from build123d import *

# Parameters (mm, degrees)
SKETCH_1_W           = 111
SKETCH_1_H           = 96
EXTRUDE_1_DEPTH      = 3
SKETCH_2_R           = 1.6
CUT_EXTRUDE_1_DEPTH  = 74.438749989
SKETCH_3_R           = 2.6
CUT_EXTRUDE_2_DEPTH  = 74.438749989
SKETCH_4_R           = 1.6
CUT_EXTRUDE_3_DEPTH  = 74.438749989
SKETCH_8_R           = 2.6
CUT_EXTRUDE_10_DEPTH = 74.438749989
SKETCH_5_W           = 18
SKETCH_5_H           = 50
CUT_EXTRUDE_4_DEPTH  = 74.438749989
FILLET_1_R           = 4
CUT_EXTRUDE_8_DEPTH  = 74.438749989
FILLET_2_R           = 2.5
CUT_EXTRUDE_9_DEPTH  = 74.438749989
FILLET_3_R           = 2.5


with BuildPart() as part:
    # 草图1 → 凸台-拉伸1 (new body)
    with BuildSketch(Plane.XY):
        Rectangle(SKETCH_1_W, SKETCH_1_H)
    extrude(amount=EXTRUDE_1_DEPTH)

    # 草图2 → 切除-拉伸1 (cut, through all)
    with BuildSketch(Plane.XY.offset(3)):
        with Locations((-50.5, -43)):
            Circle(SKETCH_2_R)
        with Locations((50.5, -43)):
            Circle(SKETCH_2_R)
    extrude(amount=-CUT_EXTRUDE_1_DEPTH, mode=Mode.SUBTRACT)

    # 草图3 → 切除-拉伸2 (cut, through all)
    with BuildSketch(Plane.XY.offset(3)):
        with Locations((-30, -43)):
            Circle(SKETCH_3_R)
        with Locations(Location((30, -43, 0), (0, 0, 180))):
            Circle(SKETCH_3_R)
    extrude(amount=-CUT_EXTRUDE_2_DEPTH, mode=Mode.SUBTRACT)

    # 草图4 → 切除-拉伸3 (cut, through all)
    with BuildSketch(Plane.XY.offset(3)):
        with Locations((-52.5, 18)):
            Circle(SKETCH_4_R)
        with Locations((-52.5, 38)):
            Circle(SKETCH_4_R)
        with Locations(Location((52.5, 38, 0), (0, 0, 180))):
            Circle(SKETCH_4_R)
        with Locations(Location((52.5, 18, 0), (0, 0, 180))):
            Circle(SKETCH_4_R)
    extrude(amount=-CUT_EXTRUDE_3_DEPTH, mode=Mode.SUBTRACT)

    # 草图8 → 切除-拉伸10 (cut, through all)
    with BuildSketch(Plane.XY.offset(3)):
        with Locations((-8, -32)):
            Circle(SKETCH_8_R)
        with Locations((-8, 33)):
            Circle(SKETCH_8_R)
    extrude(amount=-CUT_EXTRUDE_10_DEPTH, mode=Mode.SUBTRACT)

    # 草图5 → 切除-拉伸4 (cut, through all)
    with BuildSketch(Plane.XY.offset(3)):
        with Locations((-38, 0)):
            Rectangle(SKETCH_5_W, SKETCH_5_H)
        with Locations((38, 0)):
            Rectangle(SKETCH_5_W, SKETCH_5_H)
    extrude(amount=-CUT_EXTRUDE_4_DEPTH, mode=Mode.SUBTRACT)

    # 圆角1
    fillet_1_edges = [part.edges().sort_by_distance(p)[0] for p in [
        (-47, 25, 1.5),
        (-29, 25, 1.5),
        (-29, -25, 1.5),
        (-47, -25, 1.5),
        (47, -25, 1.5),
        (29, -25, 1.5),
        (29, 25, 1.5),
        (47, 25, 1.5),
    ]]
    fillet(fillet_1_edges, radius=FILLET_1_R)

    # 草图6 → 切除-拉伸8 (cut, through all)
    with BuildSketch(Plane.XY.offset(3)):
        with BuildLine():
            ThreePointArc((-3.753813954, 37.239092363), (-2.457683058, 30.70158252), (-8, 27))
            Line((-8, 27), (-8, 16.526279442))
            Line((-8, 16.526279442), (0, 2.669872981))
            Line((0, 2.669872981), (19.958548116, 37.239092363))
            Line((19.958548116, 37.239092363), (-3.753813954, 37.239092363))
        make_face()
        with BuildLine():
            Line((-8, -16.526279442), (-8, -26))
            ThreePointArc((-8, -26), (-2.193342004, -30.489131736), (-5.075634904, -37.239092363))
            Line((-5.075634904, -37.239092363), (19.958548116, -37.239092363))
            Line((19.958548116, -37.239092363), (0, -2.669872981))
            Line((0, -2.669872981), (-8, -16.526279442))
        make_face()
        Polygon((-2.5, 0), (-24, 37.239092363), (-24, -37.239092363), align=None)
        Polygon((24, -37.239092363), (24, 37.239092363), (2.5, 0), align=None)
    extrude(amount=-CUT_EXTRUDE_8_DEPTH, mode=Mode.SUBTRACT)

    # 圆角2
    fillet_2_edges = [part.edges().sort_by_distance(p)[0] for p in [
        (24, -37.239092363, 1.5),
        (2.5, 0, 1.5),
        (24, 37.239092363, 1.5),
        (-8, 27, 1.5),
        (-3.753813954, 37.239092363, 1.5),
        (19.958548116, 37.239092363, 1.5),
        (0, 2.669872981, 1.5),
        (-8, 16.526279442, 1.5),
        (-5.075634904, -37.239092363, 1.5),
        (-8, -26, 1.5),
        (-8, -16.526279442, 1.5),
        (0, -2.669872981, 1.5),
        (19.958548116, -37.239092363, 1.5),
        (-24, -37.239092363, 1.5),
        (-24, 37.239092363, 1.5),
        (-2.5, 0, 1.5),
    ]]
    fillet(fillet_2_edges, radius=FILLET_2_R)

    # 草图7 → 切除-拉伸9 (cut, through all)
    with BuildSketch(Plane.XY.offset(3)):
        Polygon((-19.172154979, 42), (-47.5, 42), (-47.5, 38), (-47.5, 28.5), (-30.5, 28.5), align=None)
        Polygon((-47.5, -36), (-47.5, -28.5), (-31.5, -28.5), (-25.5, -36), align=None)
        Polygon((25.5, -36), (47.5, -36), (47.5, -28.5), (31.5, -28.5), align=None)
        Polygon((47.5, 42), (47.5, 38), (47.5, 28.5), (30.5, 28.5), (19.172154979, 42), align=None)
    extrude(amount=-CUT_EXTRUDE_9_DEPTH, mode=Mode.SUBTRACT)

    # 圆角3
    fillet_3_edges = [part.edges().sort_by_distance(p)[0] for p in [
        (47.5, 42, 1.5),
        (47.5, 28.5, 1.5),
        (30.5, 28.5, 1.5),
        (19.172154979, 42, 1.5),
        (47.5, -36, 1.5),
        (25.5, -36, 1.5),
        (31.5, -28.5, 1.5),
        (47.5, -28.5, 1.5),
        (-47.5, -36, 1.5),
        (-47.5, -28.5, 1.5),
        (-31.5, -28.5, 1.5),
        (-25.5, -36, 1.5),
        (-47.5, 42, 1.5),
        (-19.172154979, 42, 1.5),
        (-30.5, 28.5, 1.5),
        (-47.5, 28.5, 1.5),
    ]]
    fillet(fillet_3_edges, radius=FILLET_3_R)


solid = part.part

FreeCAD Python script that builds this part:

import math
import FreeCAD as App
import Part
import Sketcher

V = App.Vector
Q = App.Units.Quantity


def edges_at(feature, points):
    """Names of the edges that pass closest to the given points."""
    edges = feature.Shape.Edges
    near = lambda p: min(range(len(edges)), key=lambda i: edges[i].distToShape(Part.Vertex(*p))[0])
    return sorted({f"Edge{near(p) + 1}" for p in points})


def add_polygon(sketch, points):
    """Adds a closed chain of lines whose ends are joined by coincident constraints."""
    first, n = sketch.GeometryCount, len(points)
    for a, b in zip(points, points[1:] + points[:1]):
        sketch.addGeometry(Part.LineSegment(App.Vector(*a, 0), App.Vector(*b, 0)), False)
    for i in range(n):
        sketch.addConstraint(Sketcher.Constraint("Coincident", first + i, 2, first + (i + 1) % n, 1))

doc = App.newDocument("Part")
body = doc.addObject("PartDesign::Body", "Body")

sketch1 = body.newObject("Sketcher::SketchObject", "Sketch")
sketch1.AttachmentSupport = (doc.getObject("XY_Plane"), [""])
sketch1.MapMode = "FlatFace"
add_polygon(sketch1, [(-55.5, 48), (-55.5, -48), (55.5, -48), (55.5, 48)])
sketch1.addConstraint([
    Sketcher.Constraint("Vertical", 0),
    Sketcher.Constraint("Horizontal", 1),
    Sketcher.Constraint("Vertical", 2),
    Sketcher.Constraint("Horizontal", 3),
    Sketcher.Constraint("Symmetric", 0, 2, 2, 2, -1, 1),
    Sketcher.Constraint("DistanceX", 1, 1, 1, 2, 111.0),
    Sketcher.Constraint("DistanceY", 0, 2, 0, 1, 96.0),
])
pad1 = body.newObject("PartDesign::Pad", "Pad")
pad1.Profile = sketch1
pad1.Length = 3

sketch2 = body.newObject("Sketcher::SketchObject", "Sketch001")
sketch2.AttachmentSupport = (doc.getObject("XY_Plane"), [""])
sketch2.MapMode = "FlatFace"
sketch2.AttachmentOffset = App.Placement(V(0, 0, 3), App.Rotation())
sketch2.addGeometry([
    Part.Circle(V(-50.5, -43, 0), V(0, 0, 1), 1.6),
    Part.Circle(V(50.5, -43, 0), V(0, 0, 1), 1.6),
], False)
sketch2.addConstraint([
    Sketcher.Constraint("Equal", 0, 1),
    Sketcher.Constraint("Symmetric", 0, 3, 1, 3, -2),
    Sketcher.Constraint("Diameter", 0, 3.2),
    Sketcher.Constraint("DistanceY", 0, 3, -1, 1, 43.0),
    Sketcher.Constraint("DistanceX", 0, 3, 1, 3, 101.0),
])
pocket1 = body.newObject("PartDesign::Pocket", "Pocket")
pocket1.Profile = sketch2
pocket1.Type = "ThroughAll"

sketch3 = body.newObject("Sketcher::SketchObject", "Sketch002")
sketch3.AttachmentSupport = (doc.getObject("XY_Plane"), [""])
sketch3.MapMode = "FlatFace"
sketch3.AttachmentOffset = App.Placement(V(0, 0, 3), App.Rotation())
sketch3.addGeometry([
    Part.Circle(V(-30, -43, 0), V(0, 0, 1), 2.6),
    Part.Circle(V(30, -43, 0), V(0, 0, 1), 2.6),
], False)
sketch3.addConstraint([
    Sketcher.Constraint("Equal", 0, 1),
    Sketcher.Constraint("Symmetric", 0, 3, 1, 3, -2),
    Sketcher.Constraint("Diameter", 0, 5.2),
    Sketcher.Constraint("DistanceX", 0, 3, -1, 1, 30.0),
    Sketcher.Constraint("DistanceY", 0, 3, -1, 1, 43.0),
])
pocket2 = body.newObject("PartDesign::Pocket", "Pocket001")
pocket2.Profile = sketch3
pocket2.Type = "ThroughAll"

sketch4 = body.newObject("Sketcher::SketchObject", "Sketch003")
sketch4.AttachmentSupport = (doc.getObject("XY_Plane"), [""])
sketch4.MapMode = "FlatFace"
sketch4.AttachmentOffset = App.Placement(V(0, 0, 3), App.Rotation())
sketch4.addGeometry([
    Part.Circle(V(-52.5, 18, 0), V(0, 0, 1), 1.6),
    Part.Circle(V(-52.5, 38, 0), V(0, 0, 1), 1.6),
    Part.Circle(V(52.5, 38, 0), V(0, 0, 1), 1.6),
    Part.Circle(V(52.5, 18, 0), V(0, 0, 1), 1.6),
], False)
sketch4.addConstraint([
    Sketcher.Constraint("Equal", 0, 1),
    Sketcher.Constraint("Equal", 1, 2),
    Sketcher.Constraint("Equal", 2, 3),
    Sketcher.Constraint("Symmetric", 1, 3, 2, 3, -2),
    Sketcher.Constraint("Symmetric", 0, 3, 3, 3, -2),
    Sketcher.Constraint("Vertical", 0, 3, 1, 3),
    Sketcher.Constraint("Diameter", 0, 3.2),
    Sketcher.Constraint("DistanceY", -1, 1, 0, 3, 18.0),
    Sketcher.Constraint("DistanceY", -1, 1, 1, 3, 38.0),
    Sketcher.Constraint("DistanceX", 1, 3, 2, 3, 105.0),
])
pocket3 = body.newObject("PartDesign::Pocket", "Pocket002")
pocket3.Profile = sketch4
pocket3.Type = "ThroughAll"

sketch5 = body.newObject("Sketcher::SketchObject", "Sketch004")
sketch5.AttachmentSupport = (doc.getObject("XY_Plane"), [""])
sketch5.MapMode = "FlatFace"
sketch5.AttachmentOffset = App.Placement(V(0, 0, 3), App.Rotation())
sketch5.addGeometry([
    Part.Circle(V(-8, -32, 0), V(0, 0, 1), 2.6),
    Part.Circle(V(-8, 33, 0), V(0, 0, 1), 2.6),
], False)
sketch5.addConstraint([
    Sketcher.Constraint("Equal", 0, 1),
    Sketcher.Constraint("Vertical", 0, 3, 1, 3),
    Sketcher.Constraint("Diameter", 0, 5.2),
    Sketcher.Constraint("DistanceX", 0, 3, -1, 1, 8.0),
    Sketcher.Constraint("DistanceY", 0, 3, -1, 1, 32.0),
    Sketcher.Constraint("DistanceY", -1, 1, 1, 3, 33.0),
])
pocket4 = body.newObject("PartDesign::Pocket", "Pocket003")
pocket4.Profile = sketch5
pocket4.Type = "ThroughAll"

sketch6 = body.newObject("Sketcher::SketchObject", "Sketch005")
sketch6.AttachmentSupport = (doc.getObject("XY_Plane"), [""])
sketch6.MapMode = "FlatFace"
sketch6.AttachmentOffset = App.Placement(V(0, 0, 3), App.Rotation())
add_polygon(sketch6, [(-47, 25), (-47, -25), (-29, -25), (-29, 25)])
add_polygon(sketch6, [(29, 25), (29, -25), (47, -25), (47, 25)])
sketch6.addConstraint([
    Sketcher.Constraint("Vertical", 0),
    Sketcher.Constraint("Horizontal", 1),
    Sketcher.Constraint("Vertical", 2),
    Sketcher.Constraint("Horizontal", 3),
    Sketcher.Constraint("Vertical", 4),
    Sketcher.Constraint("Horizontal", 5),
    Sketcher.Constraint("Vertical", 6),
    Sketcher.Constraint("Horizontal", 7),
    Sketcher.Constraint("Symmetric", 2, 2, 4, 2, -1, 1),
    Sketcher.Constraint("Symmetric", 0, 2, 6, 2, -1, 1),
    Sketcher.Constraint("Horizontal", 1, 2, 4, 2),
    Sketcher.Constraint("DistanceX", 1, 1, 1, 2, 18.0),
    Sketcher.Constraint("DistanceY", 0, 2, 0, 1, 50.0),
    Sketcher.Constraint("DistanceX", 0, 2, -1, 1, 47.0),
])
pocket5 = body.newObject("PartDesign::Pocket", "Pocket004")
pocket5.Profile = sketch6
pocket5.Type = "ThroughAll"
doc.recompute()

fillet = body.newObject("PartDesign::Fillet", "Fillet")
fillet.Base = (pocket5, edges_at(pocket5, [
    (-47, 25, 1.5),
    (-29, 25, 1.5),
    (-29, -25, 1.5),
    (-47, -25, 1.5),
    (47, -25, 1.5),
    (29, -25, 1.5),
    (29, 25, 1.5),
    (47, 25, 1.5),
]))
fillet.Radius = 4

sketch7 = body.newObject("Sketcher::SketchObject", "Sketch006")
sketch7.AttachmentSupport = (doc.getObject("XY_Plane"), [""])
sketch7.MapMode = "FlatFace"
sketch7.AttachmentOffset = App.Placement(V(0, 0, 3), App.Rotation())
sketch7.addGeometry(Part.ArcOfCircle(Part.Circle(V(-8, 33, 0), V(0, 0, 1), 6), math.radians(-90), math.radians(44.952101)), False)
sketch7.addGeometry(Part.LineSegment(V(-8, 27, 0), V(-8, 16.526279, 0)), False)
sketch7.addGeometry(Part.LineSegment(V(-8, 16.526279, 0), V(0, 2.669873, 0)), False)
sketch7.addGeometry(Part.LineSegment(V(0, 2.669873, 0), V(19.958548, 37.239092, 0)), False)
sketch7.addGeometry(Part.LineSegment(V(19.958548, 37.239092, 0), V(-3.753814, 37.239092, 0)), False)
sketch7.addGeometry(Part.LineSegment(V(-8, -16.526279, 0), V(-8, -26, 0)), False)
sketch7.addGeometry(Part.ArcOfCircle(Part.Circle(V(-8, -32, 0), V(0, 0, 1), 6), math.radians(-60.830548), math.radians(90)), False)
sketch7.addGeometry(Part.LineSegment(V(-5.075635, -37.239092, 0), V(19.958548, -37.239092, 0)), False)
sketch7.addGeometry(Part.LineSegment(V(19.958548, -37.239092, 0), V(0, -2.669873, 0)), False)
sketch7.addGeometry(Part.LineSegment(V(0, -2.669873, 0), V(-8, -16.526279, 0)), False)
add_polygon(sketch7, [(-2.5, 0), (-24, 37.239092), (-24, -37.239092)])
add_polygon(sketch7, [(24, -37.239092), (24, 37.239092), (2.5, 0)])
sketch7.addConstraint([
    Sketcher.Constraint("Coincident", 0, 1, 1, 1),
    Sketcher.Constraint("Coincident", 1, 2, 2, 1),
    Sketcher.Constraint("Coincident", 2, 2, 3, 1),
    Sketcher.Constraint("Coincident", 3, 2, 4, 1),
    Sketcher.Constraint("Coincident", 4, 2, 0, 2),
    Sketcher.Constraint("Coincident", 5, 2, 6, 2),
    Sketcher.Constraint("Coincident", 6, 1, 7, 1),
    Sketcher.Constraint("Coincident", 7, 2, 8, 1),
    Sketcher.Constraint("Coincident", 8, 2, 9, 1),
    Sketcher.Constraint("Coincident", 9, 2, 5, 1),
    Sketcher.Constraint("Vertical", 1),
    Sketcher.Constraint("Horizontal", 4),
    Sketcher.Constraint("Vertical", 5),
    Sketcher.Constraint("Horizontal", 7),
    Sketcher.Constraint("Vertical", 11),
    Sketcher.Constraint("Vertical", 13),
    Sketcher.Constraint("Equal", 0, 6),
    Sketcher.Constraint("Symmetric", 2, 2, 8, 2, -1, 1),
    Sketcher.Constraint("Symmetric", 11, 2, 13, 2, -1, 1),
    Sketcher.Constraint("Symmetric", 12, 2, 14, 2, -1, 1),
    Sketcher.Constraint("Symmetric", 3, 2, 7, 2, -1),
    Sketcher.Constraint("Symmetric", 1, 2, 9, 2, -1),
    Sketcher.Constraint("PointOnObject", 2, 2, -2),
    Sketcher.Constraint("PointOnObject", 12, 2, -1),
    Sketcher.Constraint("Parallel", 2, 8),
    Sketcher.Constraint("Parallel", 8, 10),
    Sketcher.Constraint("Parallel", 9, 12),
    Sketcher.Constraint("Parallel", 10, 15),
    Sketcher.Constraint("Horizontal", 4, 2, 10, 2),
    Sketcher.Constraint("Vertical", 0, 3, 6, 3),
    Sketcher.Constraint("Vertical", 6, 3, 0, 1),
    Sketcher.Constraint("Radius", 0, 6.0),
    Sketcher.Constraint("Angle", 2, Q("-60 deg")),
    Sketcher.Constraint("Distance", 2, 16.0),
    Sketcher.Constraint("Distance", 10, 43.0),
    Sketcher.Constraint("DistanceY", -1, 1, 0, 3, 33.0),
    Sketcher.Constraint("DistanceY", 6, 3, -1, 1, 32.0),
    Sketcher.Constraint("DistanceX", 10, 2, -1, 1, 24.0),
    Sketcher.Constraint("DistanceY", 1, 2, 1, 1, 10.473721),
])
pocket6 = body.newObject("PartDesign::Pocket", "Pocket005")
pocket6.Profile = sketch7
pocket6.Type = "ThroughAll"
doc.recompute()

fillet2 = body.newObject("PartDesign::Fillet", "Fillet001")
fillet2.Base = (pocket6, edges_at(pocket6, [
    (24, -37.239, 1.5),
    (2.5, 0, 1.5),
    (24, 37.239, 1.5),
    (-8, 27, 1.5),
    (-3.754, 37.239, 1.5),
    (19.959, 37.239, 1.5),
    (0, 2.67, 1.5),
    (-8, 16.526, 1.5),
    (-5.076, -37.239, 1.5),
    (-8, -26, 1.5),
    (-8, -16.526, 1.5),
    (0, -2.67, 1.5),
    (19.959, -37.239, 1.5),
    (-24, -37.239, 1.5),
    (-24, 37.239, 1.5),
    (-2.5, 0, 1.5),
]))
fillet2.Radius = 2.5

sketch8 = body.newObject("Sketcher::SketchObject", "Sketch007")
sketch8.AttachmentSupport = (doc.getObject("XY_Plane"), [""])
sketch8.MapMode = "FlatFace"
sketch8.AttachmentOffset = App.Placement(V(0, 0, 3), App.Rotation())
add_polygon(sketch8, [(-19.172155, 42), (-47.5, 42), (-47.5, 28.5), (-30.5, 28.5)])
add_polygon(sketch8, [(-47.5, -28.5), (-47.5, -36), (-25.5, -36), (-31.5, -28.5)])
add_polygon(sketch8, [(25.5, -36), (47.5, -36), (47.5, -28.5), (31.5, -28.5)])
add_polygon(sketch8, [(47.5, 28.5), (47.5, 42), (19.172155, 42), (30.5, 28.5)])
sketch8.addConstraint([
    Sketcher.Constraint("Horizontal", 0),
    Sketcher.Constraint("Vertical", 1),
    Sketcher.Constraint("Horizontal", 2),
    Sketcher.Constraint("Vertical", 4),
    Sketcher.Constraint("Horizontal", 5),
    Sketcher.Constraint("Horizontal", 7),
    Sketcher.Constraint("Horizontal", 8),
    Sketcher.Constraint("Vertical", 9),
    Sketcher.Constraint("Horizontal", 10),
    Sketcher.Constraint("Vertical", 12),
    Sketcher.Constraint("Horizontal", 13),
    Sketcher.Constraint("Horizontal", 15),
    Sketcher.Constraint("Symmetric", 1, 2, 9, 2, -1, 1),
    Sketcher.Constraint("Symmetric", 7, 2, 15, 2, -1, 1),
    Sketcher.Constraint("Symmetric", 4, 2, 8, 2, -2),
    Sketcher.Constraint("Symmetric", 6, 2, 10, 2, -2),
    Sketcher.Constraint("Symmetric", 3, 2, 13, 2, -2),
    Sketcher.Constraint("Equal", 5, 8),
    Sketcher.Constraint("Equal", 2, 15),
    Sketcher.Constraint("DistanceX", 2, 1, 2, 2, 17.0),
    Sketcher.Constraint("DistanceX", 5, 1, 5, 2, 22.0),
    Sketcher.Constraint("DistanceX", 7, 2, 7, 1, 16.0),
    Sketcher.Constraint("Angle", 3, Q("50 deg")),
    Sketcher.Constraint("DistanceY", 1, 2, 1, 1, 13.5),
    Sketcher.Constraint("DistanceY", 4, 2, 4, 1, 7.5),
    Sketcher.Constraint("DistanceY", -1, 1, 0, 2, 42.0),
    Sketcher.Constraint("DistanceX", 5, 2, 8, 2, 73.0),
])
pocket7 = body.newObject("PartDesign::Pocket", "Pocket006")
pocket7.Profile = sketch8
pocket7.Type = "ThroughAll"
doc.recompute()

fillet3 = body.newObject("PartDesign::Fillet", "Fillet002")
fillet3.Base = (pocket7, edges_at(pocket7, [
    (47.5, 42, 1.5),
    (47.5, 28.5, 1.5),
    (30.5, 28.5, 1.5),
    (19.172, 42, 1.5),
    (47.5, -36, 1.5),
    (25.5, -36, 1.5),
    (31.5, -28.5, 1.5),
    (47.5, -28.5, 1.5),
    (-47.5, -36, 1.5),
    (-47.5, -28.5, 1.5),
    (-31.5, -28.5, 1.5),
    (-25.5, -36, 1.5),
    (-47.5, 42, 1.5),
    (-19.172, 42, 1.5),
    (-30.5, 28.5, 1.5),
    (-47.5, 28.5, 1.5),
]))
fillet3.Radius = 2.5

doc.recompute()
